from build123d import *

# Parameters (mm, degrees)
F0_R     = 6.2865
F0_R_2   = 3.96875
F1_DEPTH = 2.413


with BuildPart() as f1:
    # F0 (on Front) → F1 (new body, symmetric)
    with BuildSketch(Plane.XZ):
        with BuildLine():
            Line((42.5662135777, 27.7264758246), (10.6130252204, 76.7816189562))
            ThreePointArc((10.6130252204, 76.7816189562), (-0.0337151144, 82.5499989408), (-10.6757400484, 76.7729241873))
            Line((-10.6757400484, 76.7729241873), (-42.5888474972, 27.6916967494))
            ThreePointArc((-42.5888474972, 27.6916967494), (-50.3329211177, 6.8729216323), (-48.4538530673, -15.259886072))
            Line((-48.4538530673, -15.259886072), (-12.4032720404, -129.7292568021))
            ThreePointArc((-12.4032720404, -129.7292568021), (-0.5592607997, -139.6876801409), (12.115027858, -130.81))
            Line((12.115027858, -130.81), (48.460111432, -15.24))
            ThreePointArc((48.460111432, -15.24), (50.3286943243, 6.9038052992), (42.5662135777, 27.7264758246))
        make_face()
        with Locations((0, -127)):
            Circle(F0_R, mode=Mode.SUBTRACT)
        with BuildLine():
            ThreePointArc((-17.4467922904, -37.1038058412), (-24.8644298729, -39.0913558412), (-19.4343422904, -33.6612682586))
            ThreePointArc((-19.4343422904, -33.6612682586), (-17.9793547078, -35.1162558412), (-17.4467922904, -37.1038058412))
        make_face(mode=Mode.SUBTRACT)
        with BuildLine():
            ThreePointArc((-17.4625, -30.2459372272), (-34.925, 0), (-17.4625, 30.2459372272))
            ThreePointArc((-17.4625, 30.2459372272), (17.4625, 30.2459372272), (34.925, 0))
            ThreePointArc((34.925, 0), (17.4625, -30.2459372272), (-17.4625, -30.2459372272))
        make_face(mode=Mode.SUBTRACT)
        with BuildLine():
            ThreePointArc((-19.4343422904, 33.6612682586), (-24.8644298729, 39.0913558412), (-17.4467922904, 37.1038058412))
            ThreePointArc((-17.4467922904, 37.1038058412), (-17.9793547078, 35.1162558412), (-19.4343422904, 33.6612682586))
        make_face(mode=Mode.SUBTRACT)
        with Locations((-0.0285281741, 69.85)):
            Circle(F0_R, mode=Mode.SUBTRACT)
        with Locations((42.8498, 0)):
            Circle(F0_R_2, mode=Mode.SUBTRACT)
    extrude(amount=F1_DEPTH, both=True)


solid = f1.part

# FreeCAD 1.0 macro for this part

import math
import FreeCAD as App
import Part
import Sketcher
Q = App.Units.Quantity

doc = App.newDocument("Part")
body = doc.addObject("PartDesign::Body", "Body")

# Sketch on XZ plane
sketch1 = doc.addObject("Sketcher::SketchObject", "Sketch")
body.addObject(sketch1)
sketch1.AttachmentSupport = (doc.XZ_Plane, [""])
sketch1.MapMode = "FlatFace"
sketch1.addGeometry([
    Part.LineSegment(App.Vector(42.6, 27.7, 0), App.Vector(10.6, 76.8, 0)),  # 0
    Part.ArcOfCircle(Part.Circle(App.Vector(0, 69.8, 0), App.Vector(0, 0, 1), 12.7), math.radians(33), math.radians(147)),  # 1
    Part.LineSegment(App.Vector(-10.7, 76.8, 0), App.Vector(-42.6, 27.7, 0)),  # 2
    Part.ArcOfCircle(Part.Circle(App.Vector(0, 0, 0), App.Vector(0, 0, 1), 50.8), math.radians(147), math.radians(197)),  # 3
    Part.LineSegment(App.Vector(-48.5, -15.3, 0), App.Vector(-12.4, -129.7, 0)),  # 4
    Part.ArcOfCircle(Part.Circle(App.Vector(0, -127, 0), App.Vector(0, 0, 1), 12.7), math.radians(-168), math.radians(-17)),  # 5
    Part.LineSegment(App.Vector(12.1, -130.8, 0), App.Vector(48.5, -15.2, 0)),  # 6
    Part.ArcOfCircle(Part.Circle(App.Vector(0, 0, 0), App.Vector(0, 0, 1), 50.8), math.radians(-17), math.radians(33)),  # 7
    Part.Circle(App.Vector(0, -127, 0), App.Vector(0, 0, 1), 6.3),  # 8
    Part.ArcOfCircle(Part.Circle(App.Vector(-21.4, -37.1, 0), App.Vector(0, 0, 1), 4), math.radians(0), math.radians(60)),  # 9
    Part.ArcOfCircle(Part.Circle(App.Vector(-21.4, -37.1, 0), App.Vector(0, 0, 1), 4), math.radians(60), math.radians(360)),  # 10
    Part.Circle(App.Vector(0, 0, 0), App.Vector(0, 0, 1), 34.9),  # 11
    Part.ArcOfCircle(Part.Circle(App.Vector(-21.4, 37.1, 0), App.Vector(0, 0, 1), 4), math.radians(-60), math.radians(0)),  # 12
    Part.ArcOfCircle(Part.Circle(App.Vector(-21.4, 37.1, 0), App.Vector(0, 0, 1), 4), math.radians(0), math.radians(300)),  # 13
    Part.Circle(App.Vector(0, 69.8, 0), App.Vector(0, 0, 1), 6.3),  # 14
    Part.Circle(App.Vector(42.8, 0, 0), App.Vector(0, 0, 1), 4),  # 15
], False)
sketch1.addConstraint([
    Sketcher.Constraint("Tangent", 0, 2, 1, 1),
    Sketcher.Constraint("Tangent", 1, 2, 2, 1),
    Sketcher.Constraint("Tangent", 2, 2, 3, 1),
    Sketcher.Constraint("Tangent", 3, 2, 4, 1),
    Sketcher.Constraint("Coincident", 4, 2, 5, 1),
    Sketcher.Constraint("Tangent", 5, 2, 6, 1),
    Sketcher.Constraint("Tangent", 6, 2, 7, 1),
    Sketcher.Constraint("Tangent", 7, 2, 0, 1),
    Sketcher.Constraint("Tangent", 9, 1, 10, 2),
    Sketcher.Constraint("Coincident", 10, 1, 9, 2),
    Sketcher.Constraint("Tangent", 12, 1, 13, 2),
    Sketcher.Constraint("Coincident", 13, 1, 12, 2),
    Sketcher.Constraint("Coincident", 3, 3, -1, 1),
    Sketcher.Constraint("Coincident", 7, 3, -1, 1),
    Sketcher.Constraint("Coincident", 11, 3, -1, 1),
    Sketcher.Constraint("Coincident", 8, 3, 5, 3),
    Sketcher.Constraint("Coincident", 14, 3, 1, 3),
    Sketcher.Constraint("Equal", 1, 5),
    Sketcher.Constraint("Equal", 3, 7),
    Sketcher.Constraint("Equal", 10, 12),
    Sketcher.Constraint("Equal", 8, 14),
    Sketcher.Constraint("Symmetric", 9, 3, 12, 3, -1),
    Sketcher.Constraint("PointOnObject", 5, 3, -2),
    Sketcher.Constraint("PointOnObject", 15, 3, -1),
    Sketcher.Constraint("Horizontal", 10, 3, 9, 1),
    Sketcher.Constraint("Horizontal", 12, 3, 13, 1),
    Sketcher.Constraint("Vertical", 10, 1, 12, 1),
    Sketcher.Constraint("Radius", 3, Q("2 in")),
    Sketcher.Constraint("Radius", 1, Q("0.5 in")),
    Sketcher.Constraint("Diameter", 11, Q("2.75 in")),
    Sketcher.Constraint("Diameter", 8, Q("0.495 in")),
    Sketcher.Constraint("Diameter", 15, Q("0.3125 in")),
    Sketcher.Constraint("DistanceY", 5, 3, -1, 1, Q("5 in")),
    Sketcher.Constraint("Radius", 9, Q("0.1565 in")),
    Sketcher.Constraint("DistanceY", -1, 1, 1, 3, Q("2.75 in")),
    Sketcher.Constraint("DistanceX", -1, 1, 15, 3, Q("1.687 in")),
    Sketcher.Constraint("DistanceX", 4, 2, 5, 2, Q("24.5183 mm")),
    Sketcher.Constraint("DistanceX", 1, 3, -1, 1, Q("0.028528 mm")),
    Sketcher.Constraint("DistanceY", 10, 1, -1, 1, Q("33.661268 mm")),
    Sketcher.Constraint("DistanceY", 9, 3, 12, 3, Q("74.207612 mm")),
    Sketcher.Constraint("DistanceX", 3, 2, 9, 3, Q("27.031961 mm")),
])
pad1 = doc.addObject("PartDesign::Pad", "Pad")
body.addObject(pad1)
pad1.Profile = sketch1
pad1.Length = Q("0.19 in")
pad1.Midplane = True

doc.recompute()
